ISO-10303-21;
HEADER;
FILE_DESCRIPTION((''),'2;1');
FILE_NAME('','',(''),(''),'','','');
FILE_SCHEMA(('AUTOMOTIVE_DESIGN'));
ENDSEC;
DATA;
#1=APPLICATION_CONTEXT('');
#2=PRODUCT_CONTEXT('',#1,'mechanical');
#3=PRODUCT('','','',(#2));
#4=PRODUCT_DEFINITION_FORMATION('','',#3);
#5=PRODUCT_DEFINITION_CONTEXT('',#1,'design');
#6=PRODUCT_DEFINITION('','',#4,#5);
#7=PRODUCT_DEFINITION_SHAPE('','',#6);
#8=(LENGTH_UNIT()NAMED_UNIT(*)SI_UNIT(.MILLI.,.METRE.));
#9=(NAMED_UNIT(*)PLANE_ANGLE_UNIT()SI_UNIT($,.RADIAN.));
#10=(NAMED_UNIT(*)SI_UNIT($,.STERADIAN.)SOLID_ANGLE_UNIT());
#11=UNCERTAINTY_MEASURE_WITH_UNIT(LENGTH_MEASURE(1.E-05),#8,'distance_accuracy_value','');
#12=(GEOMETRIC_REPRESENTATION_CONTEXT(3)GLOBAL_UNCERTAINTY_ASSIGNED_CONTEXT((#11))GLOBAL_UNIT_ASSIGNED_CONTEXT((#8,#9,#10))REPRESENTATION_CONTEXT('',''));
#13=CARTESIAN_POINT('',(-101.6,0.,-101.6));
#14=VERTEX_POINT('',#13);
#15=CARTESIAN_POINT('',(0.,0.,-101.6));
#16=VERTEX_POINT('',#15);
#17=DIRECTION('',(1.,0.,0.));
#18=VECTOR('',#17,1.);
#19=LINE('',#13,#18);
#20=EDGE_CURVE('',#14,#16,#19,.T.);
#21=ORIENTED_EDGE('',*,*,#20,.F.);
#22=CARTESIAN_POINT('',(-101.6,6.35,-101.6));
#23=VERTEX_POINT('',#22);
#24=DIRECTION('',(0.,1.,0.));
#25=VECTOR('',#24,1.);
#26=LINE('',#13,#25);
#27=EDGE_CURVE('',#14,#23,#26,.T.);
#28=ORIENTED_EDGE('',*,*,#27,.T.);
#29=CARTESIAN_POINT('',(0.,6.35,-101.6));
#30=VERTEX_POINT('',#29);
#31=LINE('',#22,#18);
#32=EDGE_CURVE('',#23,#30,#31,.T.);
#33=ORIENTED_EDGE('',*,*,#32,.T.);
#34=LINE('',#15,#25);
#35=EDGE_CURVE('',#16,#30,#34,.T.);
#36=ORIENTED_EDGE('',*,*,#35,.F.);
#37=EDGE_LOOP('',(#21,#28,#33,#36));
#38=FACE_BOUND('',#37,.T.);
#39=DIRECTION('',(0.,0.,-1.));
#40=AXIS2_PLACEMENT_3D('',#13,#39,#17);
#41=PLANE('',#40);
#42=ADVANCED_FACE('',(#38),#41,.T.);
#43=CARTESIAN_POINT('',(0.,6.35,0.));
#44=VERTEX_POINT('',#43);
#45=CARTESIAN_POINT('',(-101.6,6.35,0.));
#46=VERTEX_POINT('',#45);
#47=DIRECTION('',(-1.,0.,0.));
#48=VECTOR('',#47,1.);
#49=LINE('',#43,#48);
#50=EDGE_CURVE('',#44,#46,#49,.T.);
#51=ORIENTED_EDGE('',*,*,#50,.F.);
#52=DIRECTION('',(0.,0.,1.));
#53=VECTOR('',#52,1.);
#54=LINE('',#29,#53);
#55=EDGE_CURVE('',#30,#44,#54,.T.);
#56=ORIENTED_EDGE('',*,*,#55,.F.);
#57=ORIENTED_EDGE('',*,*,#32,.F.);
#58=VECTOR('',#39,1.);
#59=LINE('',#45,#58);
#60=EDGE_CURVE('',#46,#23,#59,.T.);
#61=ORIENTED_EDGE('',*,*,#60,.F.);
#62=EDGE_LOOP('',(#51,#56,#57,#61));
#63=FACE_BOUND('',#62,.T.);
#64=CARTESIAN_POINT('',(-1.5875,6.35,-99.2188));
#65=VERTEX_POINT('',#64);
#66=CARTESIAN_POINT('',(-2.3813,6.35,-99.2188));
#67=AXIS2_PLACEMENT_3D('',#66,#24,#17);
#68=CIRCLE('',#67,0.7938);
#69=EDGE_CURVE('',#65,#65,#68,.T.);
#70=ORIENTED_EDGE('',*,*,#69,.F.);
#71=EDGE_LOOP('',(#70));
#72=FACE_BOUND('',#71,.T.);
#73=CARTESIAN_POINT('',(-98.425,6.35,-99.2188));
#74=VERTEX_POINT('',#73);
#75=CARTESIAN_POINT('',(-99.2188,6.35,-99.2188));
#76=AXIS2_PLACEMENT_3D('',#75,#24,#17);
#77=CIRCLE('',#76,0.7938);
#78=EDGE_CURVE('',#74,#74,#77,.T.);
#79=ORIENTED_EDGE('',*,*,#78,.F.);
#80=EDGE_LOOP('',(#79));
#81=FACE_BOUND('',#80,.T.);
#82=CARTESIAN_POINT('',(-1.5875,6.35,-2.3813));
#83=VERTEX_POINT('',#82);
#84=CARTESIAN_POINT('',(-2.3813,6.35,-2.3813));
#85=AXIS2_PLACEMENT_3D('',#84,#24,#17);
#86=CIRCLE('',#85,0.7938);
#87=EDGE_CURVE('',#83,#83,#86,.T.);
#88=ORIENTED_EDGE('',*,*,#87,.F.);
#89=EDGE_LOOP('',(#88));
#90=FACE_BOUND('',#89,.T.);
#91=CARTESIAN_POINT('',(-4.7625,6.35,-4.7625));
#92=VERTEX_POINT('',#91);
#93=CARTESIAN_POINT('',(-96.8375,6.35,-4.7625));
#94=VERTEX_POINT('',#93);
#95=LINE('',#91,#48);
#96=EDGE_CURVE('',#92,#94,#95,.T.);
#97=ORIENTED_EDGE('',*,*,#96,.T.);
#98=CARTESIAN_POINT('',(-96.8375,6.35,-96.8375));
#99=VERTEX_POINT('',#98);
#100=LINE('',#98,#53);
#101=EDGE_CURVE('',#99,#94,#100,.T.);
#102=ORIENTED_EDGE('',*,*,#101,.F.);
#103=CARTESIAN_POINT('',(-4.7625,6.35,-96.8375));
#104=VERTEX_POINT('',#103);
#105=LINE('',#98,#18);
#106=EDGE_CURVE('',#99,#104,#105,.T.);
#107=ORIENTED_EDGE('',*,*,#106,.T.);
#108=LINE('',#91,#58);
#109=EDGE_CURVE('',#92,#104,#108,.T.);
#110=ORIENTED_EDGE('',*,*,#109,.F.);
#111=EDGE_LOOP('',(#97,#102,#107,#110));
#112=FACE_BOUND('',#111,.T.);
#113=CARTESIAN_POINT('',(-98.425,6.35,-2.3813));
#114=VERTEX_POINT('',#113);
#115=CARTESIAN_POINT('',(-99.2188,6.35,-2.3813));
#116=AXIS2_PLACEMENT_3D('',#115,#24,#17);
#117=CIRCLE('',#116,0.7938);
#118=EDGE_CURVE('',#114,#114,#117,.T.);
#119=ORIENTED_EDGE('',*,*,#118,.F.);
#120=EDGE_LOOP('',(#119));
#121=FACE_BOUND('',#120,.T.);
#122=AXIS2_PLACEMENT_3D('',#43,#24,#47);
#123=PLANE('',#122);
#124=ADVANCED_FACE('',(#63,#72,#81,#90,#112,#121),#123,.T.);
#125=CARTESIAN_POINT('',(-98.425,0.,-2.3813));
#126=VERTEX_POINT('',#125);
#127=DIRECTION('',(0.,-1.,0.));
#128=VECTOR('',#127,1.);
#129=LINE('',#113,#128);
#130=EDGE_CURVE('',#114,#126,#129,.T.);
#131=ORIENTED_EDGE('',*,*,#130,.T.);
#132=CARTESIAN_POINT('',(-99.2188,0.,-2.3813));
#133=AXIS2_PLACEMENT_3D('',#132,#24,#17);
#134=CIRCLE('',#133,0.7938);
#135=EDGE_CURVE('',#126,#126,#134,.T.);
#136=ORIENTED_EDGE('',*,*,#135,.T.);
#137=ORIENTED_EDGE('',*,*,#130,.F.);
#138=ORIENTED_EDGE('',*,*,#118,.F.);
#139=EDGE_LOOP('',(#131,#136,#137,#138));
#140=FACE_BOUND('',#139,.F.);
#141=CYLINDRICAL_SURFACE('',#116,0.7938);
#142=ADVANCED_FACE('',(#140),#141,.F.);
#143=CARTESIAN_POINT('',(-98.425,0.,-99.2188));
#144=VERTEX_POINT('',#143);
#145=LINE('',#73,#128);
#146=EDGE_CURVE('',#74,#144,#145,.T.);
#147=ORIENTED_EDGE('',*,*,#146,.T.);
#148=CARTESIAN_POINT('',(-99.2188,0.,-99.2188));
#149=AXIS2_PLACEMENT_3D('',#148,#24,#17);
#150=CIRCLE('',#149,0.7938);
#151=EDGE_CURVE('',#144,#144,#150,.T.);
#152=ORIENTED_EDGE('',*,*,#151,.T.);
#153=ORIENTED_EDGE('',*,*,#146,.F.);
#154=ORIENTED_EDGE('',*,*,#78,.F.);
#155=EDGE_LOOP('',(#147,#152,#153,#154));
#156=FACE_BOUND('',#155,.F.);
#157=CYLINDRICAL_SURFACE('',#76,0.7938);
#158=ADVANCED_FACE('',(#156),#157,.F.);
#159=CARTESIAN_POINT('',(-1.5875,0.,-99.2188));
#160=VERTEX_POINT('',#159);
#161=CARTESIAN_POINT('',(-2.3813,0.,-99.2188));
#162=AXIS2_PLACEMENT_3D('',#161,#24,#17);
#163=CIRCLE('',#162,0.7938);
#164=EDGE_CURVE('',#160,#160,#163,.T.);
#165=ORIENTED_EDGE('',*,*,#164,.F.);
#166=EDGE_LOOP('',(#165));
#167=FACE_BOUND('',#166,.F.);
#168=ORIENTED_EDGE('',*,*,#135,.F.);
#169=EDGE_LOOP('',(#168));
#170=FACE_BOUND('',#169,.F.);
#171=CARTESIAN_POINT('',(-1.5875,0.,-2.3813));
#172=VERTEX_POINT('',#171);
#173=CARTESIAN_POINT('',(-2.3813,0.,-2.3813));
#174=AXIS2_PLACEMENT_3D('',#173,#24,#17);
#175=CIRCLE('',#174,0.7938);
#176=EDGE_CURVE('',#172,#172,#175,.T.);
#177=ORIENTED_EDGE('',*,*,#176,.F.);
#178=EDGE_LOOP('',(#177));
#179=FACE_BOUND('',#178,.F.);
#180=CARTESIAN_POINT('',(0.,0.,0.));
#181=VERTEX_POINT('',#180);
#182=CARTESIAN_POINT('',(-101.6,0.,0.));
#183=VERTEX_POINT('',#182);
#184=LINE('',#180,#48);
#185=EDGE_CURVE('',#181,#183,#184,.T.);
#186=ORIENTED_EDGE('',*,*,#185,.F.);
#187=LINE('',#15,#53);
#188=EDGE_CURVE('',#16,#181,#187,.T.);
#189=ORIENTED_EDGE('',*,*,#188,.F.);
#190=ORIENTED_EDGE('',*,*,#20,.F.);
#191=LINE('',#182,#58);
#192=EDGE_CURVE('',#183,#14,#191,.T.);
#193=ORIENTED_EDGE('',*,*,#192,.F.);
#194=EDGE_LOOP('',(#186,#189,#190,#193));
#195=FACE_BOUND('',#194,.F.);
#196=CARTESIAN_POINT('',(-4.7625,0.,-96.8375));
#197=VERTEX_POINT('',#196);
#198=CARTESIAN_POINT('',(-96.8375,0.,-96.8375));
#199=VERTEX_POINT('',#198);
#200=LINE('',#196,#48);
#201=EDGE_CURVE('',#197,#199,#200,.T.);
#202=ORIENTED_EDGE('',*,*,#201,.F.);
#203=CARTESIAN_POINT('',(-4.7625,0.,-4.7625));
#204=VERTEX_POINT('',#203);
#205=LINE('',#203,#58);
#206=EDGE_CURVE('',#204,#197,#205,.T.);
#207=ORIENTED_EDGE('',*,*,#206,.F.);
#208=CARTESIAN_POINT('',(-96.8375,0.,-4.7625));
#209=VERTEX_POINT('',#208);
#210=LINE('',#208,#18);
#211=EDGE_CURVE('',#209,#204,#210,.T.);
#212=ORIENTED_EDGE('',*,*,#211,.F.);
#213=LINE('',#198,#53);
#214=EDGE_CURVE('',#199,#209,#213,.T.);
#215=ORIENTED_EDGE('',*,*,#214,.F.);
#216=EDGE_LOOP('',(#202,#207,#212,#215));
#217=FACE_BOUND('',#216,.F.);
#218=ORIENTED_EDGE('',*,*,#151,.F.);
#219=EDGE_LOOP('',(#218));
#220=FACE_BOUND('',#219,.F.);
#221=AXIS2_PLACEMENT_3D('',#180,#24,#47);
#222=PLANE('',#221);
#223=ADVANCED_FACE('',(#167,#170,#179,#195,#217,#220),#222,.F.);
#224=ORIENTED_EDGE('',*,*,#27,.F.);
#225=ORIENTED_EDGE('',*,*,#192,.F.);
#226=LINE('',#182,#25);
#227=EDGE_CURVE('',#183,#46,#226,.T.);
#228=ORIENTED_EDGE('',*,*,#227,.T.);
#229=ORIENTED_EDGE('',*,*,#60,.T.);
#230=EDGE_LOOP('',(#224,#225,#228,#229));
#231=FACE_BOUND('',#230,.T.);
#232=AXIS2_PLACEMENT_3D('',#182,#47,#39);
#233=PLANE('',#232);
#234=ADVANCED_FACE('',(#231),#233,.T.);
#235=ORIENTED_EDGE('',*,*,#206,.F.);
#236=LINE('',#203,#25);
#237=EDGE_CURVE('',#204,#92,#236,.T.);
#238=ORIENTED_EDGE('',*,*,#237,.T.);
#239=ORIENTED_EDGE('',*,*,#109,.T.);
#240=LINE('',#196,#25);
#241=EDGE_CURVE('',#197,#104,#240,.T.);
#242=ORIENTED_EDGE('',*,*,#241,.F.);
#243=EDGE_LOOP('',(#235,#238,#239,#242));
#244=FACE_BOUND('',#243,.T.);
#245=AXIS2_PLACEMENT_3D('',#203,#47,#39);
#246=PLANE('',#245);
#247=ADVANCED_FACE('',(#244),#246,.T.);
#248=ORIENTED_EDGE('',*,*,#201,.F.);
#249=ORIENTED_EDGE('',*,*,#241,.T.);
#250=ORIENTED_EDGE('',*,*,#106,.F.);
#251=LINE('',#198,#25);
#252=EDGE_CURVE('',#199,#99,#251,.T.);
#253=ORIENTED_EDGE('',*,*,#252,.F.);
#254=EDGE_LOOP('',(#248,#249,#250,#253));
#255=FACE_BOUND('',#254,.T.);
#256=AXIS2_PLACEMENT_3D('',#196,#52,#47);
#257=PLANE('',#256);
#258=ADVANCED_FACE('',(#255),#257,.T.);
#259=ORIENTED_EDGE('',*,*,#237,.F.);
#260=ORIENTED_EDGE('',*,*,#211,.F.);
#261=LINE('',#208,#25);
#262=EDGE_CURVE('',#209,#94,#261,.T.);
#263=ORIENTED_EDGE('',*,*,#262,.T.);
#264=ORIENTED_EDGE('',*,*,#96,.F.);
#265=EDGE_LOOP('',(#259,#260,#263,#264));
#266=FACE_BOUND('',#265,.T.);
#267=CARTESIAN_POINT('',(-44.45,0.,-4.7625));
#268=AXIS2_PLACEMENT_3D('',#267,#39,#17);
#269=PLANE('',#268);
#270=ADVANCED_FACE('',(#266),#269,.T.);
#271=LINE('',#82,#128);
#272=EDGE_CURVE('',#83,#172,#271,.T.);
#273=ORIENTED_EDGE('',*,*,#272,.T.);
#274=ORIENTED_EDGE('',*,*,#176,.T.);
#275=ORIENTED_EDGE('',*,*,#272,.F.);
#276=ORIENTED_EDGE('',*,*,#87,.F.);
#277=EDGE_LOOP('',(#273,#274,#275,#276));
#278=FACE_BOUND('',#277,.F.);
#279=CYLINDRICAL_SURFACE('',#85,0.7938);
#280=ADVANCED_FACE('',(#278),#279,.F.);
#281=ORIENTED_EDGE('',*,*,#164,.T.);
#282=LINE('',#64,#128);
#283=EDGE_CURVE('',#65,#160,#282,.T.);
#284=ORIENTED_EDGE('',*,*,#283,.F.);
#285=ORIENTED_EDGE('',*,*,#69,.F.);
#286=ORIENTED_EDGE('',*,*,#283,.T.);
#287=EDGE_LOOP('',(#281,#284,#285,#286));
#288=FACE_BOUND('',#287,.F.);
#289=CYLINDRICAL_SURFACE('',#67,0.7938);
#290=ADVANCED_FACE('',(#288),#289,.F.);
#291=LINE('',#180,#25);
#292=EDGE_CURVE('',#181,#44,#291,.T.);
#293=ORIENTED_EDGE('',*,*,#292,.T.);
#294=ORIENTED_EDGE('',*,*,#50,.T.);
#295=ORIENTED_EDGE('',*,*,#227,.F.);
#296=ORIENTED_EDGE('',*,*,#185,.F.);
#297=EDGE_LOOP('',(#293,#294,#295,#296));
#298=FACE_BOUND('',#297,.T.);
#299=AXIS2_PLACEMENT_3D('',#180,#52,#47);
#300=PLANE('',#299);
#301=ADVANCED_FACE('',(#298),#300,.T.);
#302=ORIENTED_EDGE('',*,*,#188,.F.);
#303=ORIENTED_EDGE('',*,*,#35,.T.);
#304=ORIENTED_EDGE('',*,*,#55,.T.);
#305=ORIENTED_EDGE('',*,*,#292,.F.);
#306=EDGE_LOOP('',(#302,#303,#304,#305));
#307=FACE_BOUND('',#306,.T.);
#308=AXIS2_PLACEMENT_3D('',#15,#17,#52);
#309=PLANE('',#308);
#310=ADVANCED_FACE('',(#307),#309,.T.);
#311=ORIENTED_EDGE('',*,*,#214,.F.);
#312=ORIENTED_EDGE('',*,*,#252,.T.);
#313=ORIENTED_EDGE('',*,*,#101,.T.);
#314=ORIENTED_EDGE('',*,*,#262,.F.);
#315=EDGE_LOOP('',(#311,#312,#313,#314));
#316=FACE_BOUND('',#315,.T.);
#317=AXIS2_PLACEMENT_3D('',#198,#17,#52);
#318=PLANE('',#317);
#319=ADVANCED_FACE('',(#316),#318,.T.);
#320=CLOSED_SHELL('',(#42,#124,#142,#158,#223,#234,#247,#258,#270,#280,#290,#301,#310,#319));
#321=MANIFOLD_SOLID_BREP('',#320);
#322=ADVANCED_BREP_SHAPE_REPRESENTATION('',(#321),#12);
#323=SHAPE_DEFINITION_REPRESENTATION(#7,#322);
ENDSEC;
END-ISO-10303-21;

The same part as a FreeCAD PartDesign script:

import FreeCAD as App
import Part
import Sketcher
Q = App.Units.Quantity

doc = App.newDocument("Part")
body = doc.addObject("PartDesign::Body", "Body")

sketch1 = body.newObject("Sketcher::SketchObject", "Sketch")
sketch1.AttachmentSupport = (doc.getObject("XZ_Plane"), [""])
sketch1.MapMode = "FlatFace"
sketch1.addGeometry([
    Part.LineSegment(App.Vector(-102, 0, 0), App.Vector(0, 0, 0)),
    Part.LineSegment(App.Vector(0, 0, 0), App.Vector(0, -102, 0)),
    Part.LineSegment(App.Vector(0, -102, 0), App.Vector(-102, -102, 0)),
    Part.LineSegment(App.Vector(-102, -102, 0), App.Vector(-102, 0, 0)),
    Part.LineSegment(App.Vector(-97, -97, 0), App.Vector(-5, -97, 0)),
    Part.LineSegment(App.Vector(-5, -97, 0), App.Vector(-5, -5, 0)),
    Part.LineSegment(App.Vector(-5, -5, 0), App.Vector(-97, -5, 0)),
    Part.LineSegment(App.Vector(-97, -5, 0), App.Vector(-97, -97, 0)),
], False)
sketch1.addConstraint([
    Sketcher.Constraint("Coincident", 0, 2, 1, 1),
    Sketcher.Constraint("Coincident", 1, 2, 2, 1),
    Sketcher.Constraint("Coincident", 2, 2, 3, 1),
    Sketcher.Constraint("Coincident", 3, 2, 0, 1),
    Sketcher.Constraint("Coincident", 4, 2, 5, 1),
    Sketcher.Constraint("Coincident", 5, 2, 6, 1),
    Sketcher.Constraint("Coincident", 6, 2, 7, 1),
    Sketcher.Constraint("Coincident", 7, 2, 4, 1),
    Sketcher.Constraint("Horizontal", 0),
    Sketcher.Constraint("Vertical", 1),
    Sketcher.Constraint("Horizontal", 2),
    Sketcher.Constraint("Vertical", 3),
    Sketcher.Constraint("Horizontal", 4),
    Sketcher.Constraint("Vertical", 5),
    Sketcher.Constraint("Horizontal", 6),
    Sketcher.Constraint("Vertical", 7),
    Sketcher.Constraint("Coincident", 0, 2, -1, 1),
    Sketcher.Constraint("Equal", 2, 1),
    Sketcher.Constraint("Equal", 6, 5),
    Sketcher.Constraint("DistanceX", 0, 1, 0, 2, Q("4 in")),
    Sketcher.Constraint("DistanceX", 4, 2, -1, 1, Q("0.1875 in")),
    Sketcher.Constraint("DistanceY", 5, 2, -1, 1, Q("0.1875 in")),
    Sketcher.Constraint("DistanceY", 1, 2, 4, 2, Q("0.1875 in")),
])
pad1 = body.newObject("PartDesign::Pad", "Pad")
pad1.Profile = sketch1
pad1.Length = Q("0.25 in")
pad1.Reversed = True

sketch2 = body.newObject("Sketcher::SketchObject", "Sketch001")
sketch2.AttachmentSupport = (doc.getObject("XZ_Plane"), [""])
sketch2.MapMode = "FlatFace"
sketch2.AttachmentOffset = App.Placement(App.Vector(0, 0, -0.25 * 25.4), App.Rotation())
sketch2.addGeometry([
    Part.Circle(App.Vector(-99.2, -99.2, 0), App.Vector(0, 0, 1), 0.8),
    Part.Circle(App.Vector(-99.2, -2.4, 0), App.Vector(0, 0, 1), 0.8),
    Part.Circle(App.Vector(-2.4, -99.2, 0), App.Vector(0, 0, 1), 0.8),
    Part.Circle(App.Vector(-2.4, -2.4, 0), App.Vector(0, 0, 1), 0.8),
], False)
sketch2.addConstraint([
    Sketcher.Constraint("Equal", 0, 1),
    Sketcher.Constraint("Equal", 1, 2),
    Sketcher.Constraint("Equal", 2, 3),
    Sketcher.Constraint("Horizontal", 0, 3, 2, 3),
    Sketcher.Constraint("Horizontal", 1, 3, 3, 3),
    Sketcher.Constraint("Vertical", 0, 3, 1, 3),
    Sketcher.Constraint("Vertical", 2, 3, 3, 3),
    Sketcher.Constraint("Diameter", 0, Q("0.0625 in")),
    Sketcher.Constraint("DistanceY", 1, 3, -1, 1, Q("0.093752 in")),
    Sketcher.Constraint("DistanceX", 2, 3, -1, 1, Q("0.093752 in")),
    Sketcher.Constraint("DistanceY", 0, 3, 1, 3, Q("3.8125 in")),
    Sketcher.Constraint("DistanceX", 0, 3, 2, 3, Q("3.8125 in")),
])
pocket1 = body.newObject("PartDesign::Pocket", "Pocket")
pocket1.Profile = sketch2
pocket1.Length = Q("0.25 in")
pocket1.Reversed = True

doc.recompute()
